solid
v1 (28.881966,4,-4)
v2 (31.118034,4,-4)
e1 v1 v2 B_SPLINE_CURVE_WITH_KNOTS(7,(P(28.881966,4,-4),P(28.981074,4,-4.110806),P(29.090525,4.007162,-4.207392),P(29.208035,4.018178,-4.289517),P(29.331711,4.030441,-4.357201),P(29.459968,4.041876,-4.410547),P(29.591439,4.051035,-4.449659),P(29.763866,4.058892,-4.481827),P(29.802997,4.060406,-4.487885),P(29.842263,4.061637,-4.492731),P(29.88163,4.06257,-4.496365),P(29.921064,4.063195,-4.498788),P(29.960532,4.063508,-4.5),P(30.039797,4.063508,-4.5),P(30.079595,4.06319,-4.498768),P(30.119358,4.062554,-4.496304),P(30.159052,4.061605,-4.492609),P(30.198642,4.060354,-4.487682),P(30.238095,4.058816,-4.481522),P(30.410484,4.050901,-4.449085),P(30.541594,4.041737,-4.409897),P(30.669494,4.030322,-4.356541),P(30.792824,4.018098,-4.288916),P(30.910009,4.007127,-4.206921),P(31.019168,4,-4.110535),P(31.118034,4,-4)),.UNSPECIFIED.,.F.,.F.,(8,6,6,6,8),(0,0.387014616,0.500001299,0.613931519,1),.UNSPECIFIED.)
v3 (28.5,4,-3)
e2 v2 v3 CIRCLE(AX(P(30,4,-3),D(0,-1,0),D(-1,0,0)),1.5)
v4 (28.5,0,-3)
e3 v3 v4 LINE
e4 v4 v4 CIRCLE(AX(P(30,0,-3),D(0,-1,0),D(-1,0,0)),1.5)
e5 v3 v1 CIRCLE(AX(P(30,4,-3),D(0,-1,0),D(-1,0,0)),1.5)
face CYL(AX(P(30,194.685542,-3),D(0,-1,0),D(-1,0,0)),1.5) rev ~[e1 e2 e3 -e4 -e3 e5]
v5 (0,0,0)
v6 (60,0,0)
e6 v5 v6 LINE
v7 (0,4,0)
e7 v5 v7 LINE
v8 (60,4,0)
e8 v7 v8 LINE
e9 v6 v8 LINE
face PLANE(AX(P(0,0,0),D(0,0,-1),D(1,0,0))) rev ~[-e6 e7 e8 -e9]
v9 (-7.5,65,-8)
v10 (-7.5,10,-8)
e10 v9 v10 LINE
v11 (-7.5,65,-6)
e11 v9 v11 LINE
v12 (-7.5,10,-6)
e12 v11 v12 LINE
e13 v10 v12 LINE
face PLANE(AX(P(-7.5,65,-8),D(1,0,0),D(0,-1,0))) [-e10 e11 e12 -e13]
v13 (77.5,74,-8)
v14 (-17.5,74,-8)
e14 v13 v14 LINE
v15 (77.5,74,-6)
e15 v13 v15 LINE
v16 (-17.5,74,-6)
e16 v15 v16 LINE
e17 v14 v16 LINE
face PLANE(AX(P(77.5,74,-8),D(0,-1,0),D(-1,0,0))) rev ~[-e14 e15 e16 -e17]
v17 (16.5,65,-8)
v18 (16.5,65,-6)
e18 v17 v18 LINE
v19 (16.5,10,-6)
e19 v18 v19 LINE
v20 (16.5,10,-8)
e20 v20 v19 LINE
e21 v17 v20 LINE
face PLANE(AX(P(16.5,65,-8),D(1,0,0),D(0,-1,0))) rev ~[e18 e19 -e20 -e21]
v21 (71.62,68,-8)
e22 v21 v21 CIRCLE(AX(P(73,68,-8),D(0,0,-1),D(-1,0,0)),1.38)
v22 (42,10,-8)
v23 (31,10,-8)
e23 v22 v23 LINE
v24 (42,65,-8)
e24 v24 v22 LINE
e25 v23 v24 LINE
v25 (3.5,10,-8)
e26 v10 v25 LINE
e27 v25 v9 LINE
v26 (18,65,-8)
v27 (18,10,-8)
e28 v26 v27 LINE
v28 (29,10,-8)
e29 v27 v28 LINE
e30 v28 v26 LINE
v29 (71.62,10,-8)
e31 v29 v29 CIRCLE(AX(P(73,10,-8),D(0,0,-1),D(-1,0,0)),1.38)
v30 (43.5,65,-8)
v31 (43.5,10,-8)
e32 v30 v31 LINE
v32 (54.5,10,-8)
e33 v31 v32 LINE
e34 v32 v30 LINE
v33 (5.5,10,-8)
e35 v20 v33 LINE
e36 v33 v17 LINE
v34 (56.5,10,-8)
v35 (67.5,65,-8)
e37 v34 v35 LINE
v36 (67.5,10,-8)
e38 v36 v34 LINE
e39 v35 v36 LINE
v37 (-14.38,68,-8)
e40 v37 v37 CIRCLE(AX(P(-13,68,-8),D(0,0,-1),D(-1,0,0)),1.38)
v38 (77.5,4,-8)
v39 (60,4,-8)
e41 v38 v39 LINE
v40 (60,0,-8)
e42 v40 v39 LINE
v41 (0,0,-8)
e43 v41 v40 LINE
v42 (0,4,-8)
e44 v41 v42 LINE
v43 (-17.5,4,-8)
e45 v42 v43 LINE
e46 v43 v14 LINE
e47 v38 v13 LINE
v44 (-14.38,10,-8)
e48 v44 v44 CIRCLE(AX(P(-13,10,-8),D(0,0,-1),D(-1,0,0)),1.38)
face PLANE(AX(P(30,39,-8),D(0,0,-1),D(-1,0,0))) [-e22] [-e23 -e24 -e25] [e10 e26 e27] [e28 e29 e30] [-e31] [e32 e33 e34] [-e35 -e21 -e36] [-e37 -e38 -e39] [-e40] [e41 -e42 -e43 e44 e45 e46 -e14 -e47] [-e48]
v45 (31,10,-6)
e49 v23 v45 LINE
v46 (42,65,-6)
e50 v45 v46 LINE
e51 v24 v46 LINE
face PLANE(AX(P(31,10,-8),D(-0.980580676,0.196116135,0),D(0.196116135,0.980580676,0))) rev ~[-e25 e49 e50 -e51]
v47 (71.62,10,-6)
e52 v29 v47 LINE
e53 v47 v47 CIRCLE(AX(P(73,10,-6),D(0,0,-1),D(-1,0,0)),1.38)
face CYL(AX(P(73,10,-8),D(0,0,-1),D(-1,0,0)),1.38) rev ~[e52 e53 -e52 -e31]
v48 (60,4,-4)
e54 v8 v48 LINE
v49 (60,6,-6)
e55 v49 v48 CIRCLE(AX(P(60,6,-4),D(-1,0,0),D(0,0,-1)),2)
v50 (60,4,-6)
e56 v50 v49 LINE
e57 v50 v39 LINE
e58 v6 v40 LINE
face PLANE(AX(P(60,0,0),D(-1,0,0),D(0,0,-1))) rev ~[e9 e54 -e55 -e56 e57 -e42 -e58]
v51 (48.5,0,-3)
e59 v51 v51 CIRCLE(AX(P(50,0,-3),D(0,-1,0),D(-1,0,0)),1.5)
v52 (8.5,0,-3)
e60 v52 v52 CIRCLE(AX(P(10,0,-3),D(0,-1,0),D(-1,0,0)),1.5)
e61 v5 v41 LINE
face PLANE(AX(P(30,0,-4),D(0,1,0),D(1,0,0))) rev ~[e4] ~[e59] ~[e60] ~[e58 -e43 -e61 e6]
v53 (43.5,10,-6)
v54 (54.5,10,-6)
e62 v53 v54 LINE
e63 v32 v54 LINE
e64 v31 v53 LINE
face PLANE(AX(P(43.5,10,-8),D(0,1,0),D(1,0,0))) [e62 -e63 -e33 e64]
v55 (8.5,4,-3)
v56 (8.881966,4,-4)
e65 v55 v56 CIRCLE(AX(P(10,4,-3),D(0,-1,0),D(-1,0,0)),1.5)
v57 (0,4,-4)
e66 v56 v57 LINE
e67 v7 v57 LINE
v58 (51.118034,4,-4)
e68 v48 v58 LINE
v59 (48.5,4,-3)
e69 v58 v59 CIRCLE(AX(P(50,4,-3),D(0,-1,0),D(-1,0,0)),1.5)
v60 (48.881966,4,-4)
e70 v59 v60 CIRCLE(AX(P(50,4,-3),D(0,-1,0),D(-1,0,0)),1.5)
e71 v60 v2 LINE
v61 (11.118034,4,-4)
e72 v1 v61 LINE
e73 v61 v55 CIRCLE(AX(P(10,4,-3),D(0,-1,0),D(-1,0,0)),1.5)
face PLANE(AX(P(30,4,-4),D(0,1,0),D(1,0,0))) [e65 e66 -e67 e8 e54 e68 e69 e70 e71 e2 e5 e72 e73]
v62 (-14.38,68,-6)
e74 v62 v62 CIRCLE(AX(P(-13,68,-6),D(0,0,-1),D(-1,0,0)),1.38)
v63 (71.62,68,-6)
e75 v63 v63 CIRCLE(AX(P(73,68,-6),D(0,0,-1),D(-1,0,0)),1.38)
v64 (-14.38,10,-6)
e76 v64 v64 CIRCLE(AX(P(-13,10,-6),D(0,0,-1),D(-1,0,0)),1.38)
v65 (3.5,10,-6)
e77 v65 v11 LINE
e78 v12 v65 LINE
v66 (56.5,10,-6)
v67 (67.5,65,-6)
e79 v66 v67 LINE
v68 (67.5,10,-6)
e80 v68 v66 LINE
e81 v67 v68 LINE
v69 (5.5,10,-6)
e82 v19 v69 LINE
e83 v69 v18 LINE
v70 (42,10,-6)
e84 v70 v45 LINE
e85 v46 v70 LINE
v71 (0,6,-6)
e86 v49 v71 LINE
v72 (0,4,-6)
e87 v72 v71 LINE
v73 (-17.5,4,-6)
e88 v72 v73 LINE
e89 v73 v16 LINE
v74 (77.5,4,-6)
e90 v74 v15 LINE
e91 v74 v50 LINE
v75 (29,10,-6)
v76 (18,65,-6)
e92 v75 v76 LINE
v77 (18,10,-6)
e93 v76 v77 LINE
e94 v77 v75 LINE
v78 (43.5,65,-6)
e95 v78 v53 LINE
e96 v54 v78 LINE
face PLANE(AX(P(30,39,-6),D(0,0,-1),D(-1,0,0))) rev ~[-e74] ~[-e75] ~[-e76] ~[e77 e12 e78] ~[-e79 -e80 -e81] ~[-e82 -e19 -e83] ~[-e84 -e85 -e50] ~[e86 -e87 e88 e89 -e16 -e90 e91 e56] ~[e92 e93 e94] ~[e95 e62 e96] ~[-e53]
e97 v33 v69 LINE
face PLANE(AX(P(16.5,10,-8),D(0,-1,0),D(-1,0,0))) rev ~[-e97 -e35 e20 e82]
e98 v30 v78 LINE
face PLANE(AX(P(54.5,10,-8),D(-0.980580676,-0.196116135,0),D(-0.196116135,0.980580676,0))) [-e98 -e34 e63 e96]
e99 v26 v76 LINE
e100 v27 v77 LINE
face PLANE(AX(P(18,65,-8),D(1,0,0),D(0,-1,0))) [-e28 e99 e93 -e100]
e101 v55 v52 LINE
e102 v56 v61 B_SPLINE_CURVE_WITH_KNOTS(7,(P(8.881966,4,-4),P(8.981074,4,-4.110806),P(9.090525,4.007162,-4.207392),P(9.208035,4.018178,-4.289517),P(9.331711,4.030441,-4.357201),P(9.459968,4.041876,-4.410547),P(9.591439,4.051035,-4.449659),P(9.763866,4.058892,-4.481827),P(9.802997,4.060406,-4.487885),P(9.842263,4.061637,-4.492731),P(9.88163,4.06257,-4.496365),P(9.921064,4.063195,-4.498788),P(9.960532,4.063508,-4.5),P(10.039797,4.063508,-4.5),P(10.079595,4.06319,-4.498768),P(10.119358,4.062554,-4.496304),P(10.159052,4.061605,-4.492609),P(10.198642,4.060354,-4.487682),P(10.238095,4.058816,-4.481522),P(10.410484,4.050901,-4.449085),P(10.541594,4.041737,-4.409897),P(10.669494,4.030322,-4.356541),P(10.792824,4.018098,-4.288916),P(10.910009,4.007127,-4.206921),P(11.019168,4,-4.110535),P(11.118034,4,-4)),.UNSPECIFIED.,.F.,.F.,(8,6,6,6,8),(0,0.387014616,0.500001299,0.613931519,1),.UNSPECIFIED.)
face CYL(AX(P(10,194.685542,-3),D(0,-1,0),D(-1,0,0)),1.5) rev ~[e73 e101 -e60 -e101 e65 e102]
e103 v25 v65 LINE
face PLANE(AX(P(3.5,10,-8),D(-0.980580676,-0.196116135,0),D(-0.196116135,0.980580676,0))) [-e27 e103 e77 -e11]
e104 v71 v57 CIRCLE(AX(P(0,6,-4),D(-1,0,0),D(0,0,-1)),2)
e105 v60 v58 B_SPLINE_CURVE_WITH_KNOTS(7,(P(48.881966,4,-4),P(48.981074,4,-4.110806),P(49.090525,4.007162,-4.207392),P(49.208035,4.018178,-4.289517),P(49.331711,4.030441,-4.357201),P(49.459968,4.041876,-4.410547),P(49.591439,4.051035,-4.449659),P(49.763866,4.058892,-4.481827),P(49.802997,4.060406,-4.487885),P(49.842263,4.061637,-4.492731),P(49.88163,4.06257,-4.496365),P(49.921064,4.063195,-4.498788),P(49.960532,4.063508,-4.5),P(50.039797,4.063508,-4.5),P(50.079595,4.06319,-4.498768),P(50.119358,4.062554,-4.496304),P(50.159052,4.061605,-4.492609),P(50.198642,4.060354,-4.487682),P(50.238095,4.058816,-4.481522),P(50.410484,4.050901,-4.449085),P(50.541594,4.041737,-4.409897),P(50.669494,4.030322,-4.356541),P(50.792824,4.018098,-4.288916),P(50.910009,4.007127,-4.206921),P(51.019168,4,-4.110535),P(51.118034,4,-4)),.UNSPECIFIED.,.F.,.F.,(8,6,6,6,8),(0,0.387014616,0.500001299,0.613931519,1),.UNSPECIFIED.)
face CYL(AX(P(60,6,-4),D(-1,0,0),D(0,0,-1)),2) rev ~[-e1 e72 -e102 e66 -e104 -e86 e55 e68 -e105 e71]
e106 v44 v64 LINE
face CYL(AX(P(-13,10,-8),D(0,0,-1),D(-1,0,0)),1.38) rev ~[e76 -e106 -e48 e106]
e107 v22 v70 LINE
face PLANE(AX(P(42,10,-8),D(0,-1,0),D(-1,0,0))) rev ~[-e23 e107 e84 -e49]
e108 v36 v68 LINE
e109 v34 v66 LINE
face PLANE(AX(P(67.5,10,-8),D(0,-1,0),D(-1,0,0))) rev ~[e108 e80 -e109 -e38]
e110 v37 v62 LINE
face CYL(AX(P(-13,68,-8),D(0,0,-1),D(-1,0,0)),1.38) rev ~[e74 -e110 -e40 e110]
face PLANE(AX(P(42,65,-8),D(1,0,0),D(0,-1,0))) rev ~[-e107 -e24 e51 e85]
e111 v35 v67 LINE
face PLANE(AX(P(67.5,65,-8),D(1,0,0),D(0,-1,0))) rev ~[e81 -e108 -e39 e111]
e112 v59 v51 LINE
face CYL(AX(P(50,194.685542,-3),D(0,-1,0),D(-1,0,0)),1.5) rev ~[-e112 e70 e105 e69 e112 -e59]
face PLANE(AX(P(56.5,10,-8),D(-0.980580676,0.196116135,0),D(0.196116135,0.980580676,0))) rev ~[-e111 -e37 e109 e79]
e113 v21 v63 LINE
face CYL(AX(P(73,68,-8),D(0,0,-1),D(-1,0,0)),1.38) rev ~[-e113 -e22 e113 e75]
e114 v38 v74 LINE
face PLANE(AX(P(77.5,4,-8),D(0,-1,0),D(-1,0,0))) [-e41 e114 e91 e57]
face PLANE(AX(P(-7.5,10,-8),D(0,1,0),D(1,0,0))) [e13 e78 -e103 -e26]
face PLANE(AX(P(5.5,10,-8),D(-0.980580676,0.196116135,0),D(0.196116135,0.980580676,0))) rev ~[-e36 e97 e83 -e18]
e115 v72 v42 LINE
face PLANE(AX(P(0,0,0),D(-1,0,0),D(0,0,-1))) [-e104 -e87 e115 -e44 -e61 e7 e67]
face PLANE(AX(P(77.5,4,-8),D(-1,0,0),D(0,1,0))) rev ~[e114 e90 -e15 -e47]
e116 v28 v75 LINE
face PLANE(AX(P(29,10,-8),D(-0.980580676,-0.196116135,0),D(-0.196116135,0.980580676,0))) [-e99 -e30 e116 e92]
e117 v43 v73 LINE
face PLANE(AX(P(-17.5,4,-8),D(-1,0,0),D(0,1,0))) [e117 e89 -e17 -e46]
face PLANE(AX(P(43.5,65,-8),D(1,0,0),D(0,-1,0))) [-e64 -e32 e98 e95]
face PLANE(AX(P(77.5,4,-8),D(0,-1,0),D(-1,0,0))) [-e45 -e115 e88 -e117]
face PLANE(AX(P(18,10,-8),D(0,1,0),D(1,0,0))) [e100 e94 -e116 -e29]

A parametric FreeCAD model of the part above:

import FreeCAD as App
import Part
import Sketcher

V = App.Vector
Q = App.Units.Quantity


def edges_at(feature, points):
    """Names of the edges that pass closest to the given points."""
    edges = feature.Shape.Edges
    near = lambda p: min(range(len(edges)), key=lambda i: edges[i].distToShape(Part.Vertex(*p))[0])
    return sorted({f"Edge{near(p) + 1}" for p in points})


def add_polygon(sketch, points):
    """Adds a closed chain of lines whose ends are joined by coincident constraints."""
    first, n = sketch.GeometryCount, len(points)
    for a, b in zip(points, points[1:] + points[:1]):
        sketch.addGeometry(Part.LineSegment(App.Vector(*a, 0), App.Vector(*b, 0)), False)
    for i in range(n):
        sketch.addConstraint(Sketcher.Constraint("Coincident", first + i, 2, first + (i + 1) % n, 1))

doc = App.newDocument("Part")
body = doc.addObject("PartDesign::Body", "Body")

# Sketch on XZ plane
sketch1 = doc.addObject("Sketcher::SketchObject", "Sketch")
body.addObject(sketch1)
sketch1.AttachmentSupport = (doc.XZ_Plane, [""])
sketch1.MapMode = "FlatFace"
add_polygon(sketch1, [(0, -8), (0, 0), (60, 0), (60, -8)])  # lines 0-3
sketch1.addConstraint(Sketcher.Constraint("Vertical", 0))
sketch1.addConstraint(Sketcher.Constraint("Horizontal", 1))
sketch1.addConstraint(Sketcher.Constraint("Vertical", 2))
sketch1.addConstraint(Sketcher.Constraint("Horizontal", 3))
sketch1.addConstraint(Sketcher.Constraint("Coincident", 0, 2, -1, 1))
sketch1.addConstraint(Sketcher.Constraint("DistanceX", 1, 1, 1, 2, Q("60 mm")))
sketch1.addConstraint(Sketcher.Constraint("DistanceY", 0, 1, 0, 2, Q("8 mm")))
pad1 = doc.addObject("PartDesign::Pad", "Pad")
body.addObject(pad1)
pad1.Profile = sketch1
pad1.Length = 4
pad1.Reversed = True

# Sketch on XY plane
sketch2 = doc.addObject("Sketcher::SketchObject", "Sketch001")
body.addObject(sketch2)
sketch2.AttachmentSupport = (doc.XY_Plane, [""])
sketch2.MapMode = "FlatFace"
sketch2.AttachmentOffset = App.Placement(V(0, 0, -8), App.Rotation())
add_polygon(sketch2, [(77.5, 74), (77.5, 4), (-17.5, 4), (-17.5, 74)])  # lines 0-3
sketch2.addGeometry(Part.Circle(V(73, 10, 0), V(0, 0, 1), 1.4), False)  # 4
add_polygon(sketch2, [(56.5, 10), (67.5, 10), (67.5, 65)])  # lines 5-7
add_polygon(sketch2, [(43.5, 65), (43.5, 10), (54.5, 10)])  # lines 8-10
add_polygon(sketch2, [(31, 10), (42, 10), (42, 65)])  # lines 11-13
sketch2.addGeometry(Part.Circle(V(-13, 10, 0), V(0, 0, 1), 1.4), False)  # 14
add_polygon(sketch2, [(18, 65), (18, 10), (29, 10)])  # lines 15-17
add_polygon(sketch2, [(5.5, 10), (16.5, 10), (16.5, 65)])  # lines 18-20
add_polygon(sketch2, [(-7.5, 10), (3.5, 10), (-7.5, 65)])  # lines 21-23
sketch2.addGeometry(Part.Circle(V(73, 68, 0), V(0, 0, 1), 1.4), False)  # 24
sketch2.addGeometry(Part.Circle(V(-13, 68, 0), V(0, 0, 1), 1.4), False)  # 25
sketch2.addConstraint(Sketcher.Constraint("Vertical", 0))
sketch2.addConstraint(Sketcher.Constraint("Horizontal", 1))
sketch2.addConstraint(Sketcher.Constraint("Vertical", 2))
sketch2.addConstraint(Sketcher.Constraint("Horizontal", 3))
sketch2.addConstraint(Sketcher.Constraint("Horizontal", 5))
sketch2.addConstraint(Sketcher.Constraint("Vertical", 6))
sketch2.addConstraint(Sketcher.Constraint("Vertical", 8))
sketch2.addConstraint(Sketcher.Constraint("Horizontal", 9))
sketch2.addConstraint(Sketcher.Constraint("Horizontal", 11))
sketch2.addConstraint(Sketcher.Constraint("Vertical", 12))
sketch2.addConstraint(Sketcher.Constraint("Vertical", 15))
sketch2.addConstraint(Sketcher.Constraint("Horizontal", 16))
sketch2.addConstraint(Sketcher.Constraint("Horizontal", 18))
sketch2.addConstraint(Sketcher.Constraint("Vertical", 19))
sketch2.addConstraint(Sketcher.Constraint("Horizontal", 21))
sketch2.addConstraint(Sketcher.Constraint("Vertical", 23))
sketch2.addConstraint(Sketcher.Constraint("Equal", 4, 14))
sketch2.addConstraint(Sketcher.Constraint("Equal", 14, 24))
sketch2.addConstraint(Sketcher.Constraint("Equal", 24, 25))
sketch2.addConstraint(Sketcher.Constraint("Parallel", 7, 13))
sketch2.addConstraint(Sketcher.Constraint("Parallel", 10, 17))
sketch2.addConstraint(Sketcher.Constraint("Parallel", 13, 20))
sketch2.addConstraint(Sketcher.Constraint("Parallel", 17, 22))
sketch2.addConstraint(Sketcher.Constraint("Horizontal", 4, 3, 14, 3))
sketch2.addConstraint(Sketcher.Constraint("Horizontal", 24, 3, 25, 3))
sketch2.addConstraint(Sketcher.Constraint("Horizontal", 14, 3, 5, 2))
sketch2.addConstraint(Sketcher.Constraint("Horizontal", 7, 2, 8, 2))
sketch2.addConstraint(Sketcher.Constraint("Horizontal", 6, 2, 10, 2))
sketch2.addConstraint(Sketcher.Constraint("Horizontal", 9, 2, 11, 2))
sketch2.addConstraint(Sketcher.Constraint("Horizontal", 10, 2, 12, 2))
sketch2.addConstraint(Sketcher.Constraint("Horizontal", 13, 2, 15, 2))
sketch2.addConstraint(Sketcher.Constraint("Horizontal", 12, 2, 17, 2))
sketch2.addConstraint(Sketcher.Constraint("Horizontal", 16, 2, 18, 2))
sketch2.addConstraint(Sketcher.Constraint("Horizontal", 17, 2, 19, 2))
sketch2.addConstraint(Sketcher.Constraint("Horizontal", 20, 2, 21, 2))
sketch2.addConstraint(Sketcher.Constraint("Horizontal", 19, 2, 22, 2))
sketch2.addConstraint(Sketcher.Constraint("Vertical", 4, 3, 24, 3))
sketch2.addConstraint(Sketcher.Constraint("Vertical", 14, 3, 25, 3))
sketch2.addConstraint(Sketcher.Constraint("Equal", 5, 9))
sketch2.addConstraint(Sketcher.Constraint("Diameter", 4, Q("2.76 mm")))
sketch2.addConstraint(Sketcher.Constraint("DistanceX", 1, 2, 1, 1, Q("95 mm")))
sketch2.addConstraint(Sketcher.Constraint("DistanceX", 5, 1, 5, 2, Q("11 mm")))
sketch2.addConstraint(Sketcher.Constraint("DistanceY", 0, 2, 0, 1, Q("70 mm")))
sketch2.addConstraint(Sketcher.Constraint("DistanceY", 6, 1, 6, 2, Q("55 mm")))
sketch2.addConstraint(Sketcher.Constraint("DistanceX", -1, 1, 4, 3, Q("73 mm")))
sketch2.addConstraint(Sketcher.Constraint("DistanceY", -1, 1, 4, 3, Q("10 mm")))
sketch2.addConstraint(Sketcher.Constraint("DistanceX", 14, 3, -1, 1, Q("13 mm")))
sketch2.addConstraint(Sketcher.Constraint("DistanceY", -1, 1, 24, 3, Q("68 mm")))
sketch2.addConstraint(Sketcher.Constraint("DistanceY", -1, 1, 0, 2, Q("4 mm")))
sketch2.addConstraint(Sketcher.Constraint("DistanceX", -1, 1, 11, 2, Q("42 mm")))
sketch2.addConstraint(Sketcher.Constraint("DistanceX", -1, 1, 15, 2, Q("18 mm")))
sketch2.addConstraint(Sketcher.Constraint("DistanceX", 5, 2, 0, 2, Q("10 mm")))
sketch2.addConstraint(Sketcher.Constraint("DistanceX", 8, 2, 7, 2, Q("13 mm")))
sketch2.addConstraint(Sketcher.Constraint("DistanceX", 18, 2, 8, 2, Q("27 mm")))
sketch2.addConstraint(Sketcher.Constraint("DistanceX", 21, 2, 20, 2, Q("2 mm")))
sketch2.addConstraint(Sketcher.Constraint("DistanceX", -1, 1, 0, 2, Q("77.5 mm")))
pad2 = doc.addObject("PartDesign::Pad", "Pad001")
body.addObject(pad2)
pad2.Profile = sketch2
pad2.Length = 2
doc.recompute()

fillet = doc.addObject("PartDesign::Fillet", "Fillet")
body.addObject(fillet)
fillet.Base = (pad2, edges_at(pad2, [(30, 4, -6)]))
fillet.Radius = 2

# Sketch on XZ plane
sketch3 = doc.addObject("Sketcher::SketchObject", "Sketch002")
body.addObject(sketch3)
sketch3.AttachmentSupport = (doc.XZ_Plane, [""])
sketch3.MapMode = "FlatFace"
sketch3.AttachmentOffset = App.Placement(V(0, 0, -74), App.Rotation())
sketch3.addGeometry(Part.Circle(V(10, -3, 0), V(0, 0, 1), 1.5), False)
sketch3.addGeometry(Part.Circle(V(30, -3, 0), V(0, 0, 1), 1.5), False)
sketch3.addGeometry(Part.Circle(V(50, -3, 0), V(0, 0, 1), 1.5), False)
sketch3.addConstraint(Sketcher.Constraint("Equal", 0, 1))
sketch3.addConstraint(Sketcher.Constraint("Equal", 1, 2))
sketch3.addConstraint(Sketcher.Constraint("Horizontal", 0, 3, 1, 3))
sketch3.addConstraint(Sketcher.Constraint("Horizontal", 1, 3, 2, 3))
sketch3.addConstraint(Sketcher.Constraint("Diameter", 0, Q("3 mm")))
sketch3.addConstraint(Sketcher.Constraint("DistanceX", -1, 1, 0, 3, Q("10 mm")))
sketch3.addConstraint(Sketcher.Constraint("DistanceY", 0, 3, -1, 1, Q("3 mm")))
sketch3.addConstraint(Sketcher.Constraint("DistanceX", -1, 1, 1, 3, Q("30 mm")))
sketch3.addConstraint(Sketcher.Constraint("DistanceX", -1, 1, 2, 3, Q("50 mm")))
doc.recompute()
hole = doc.addObject("PartDesign::Hole", "Hole")
body.addObject(hole)
hole.Profile = sketch3
hole.ThreadType = "None"
hole.Diameter = 3
hole.DepthType = "ThroughAll"
hole.Reversed = True

doc.recompute()
